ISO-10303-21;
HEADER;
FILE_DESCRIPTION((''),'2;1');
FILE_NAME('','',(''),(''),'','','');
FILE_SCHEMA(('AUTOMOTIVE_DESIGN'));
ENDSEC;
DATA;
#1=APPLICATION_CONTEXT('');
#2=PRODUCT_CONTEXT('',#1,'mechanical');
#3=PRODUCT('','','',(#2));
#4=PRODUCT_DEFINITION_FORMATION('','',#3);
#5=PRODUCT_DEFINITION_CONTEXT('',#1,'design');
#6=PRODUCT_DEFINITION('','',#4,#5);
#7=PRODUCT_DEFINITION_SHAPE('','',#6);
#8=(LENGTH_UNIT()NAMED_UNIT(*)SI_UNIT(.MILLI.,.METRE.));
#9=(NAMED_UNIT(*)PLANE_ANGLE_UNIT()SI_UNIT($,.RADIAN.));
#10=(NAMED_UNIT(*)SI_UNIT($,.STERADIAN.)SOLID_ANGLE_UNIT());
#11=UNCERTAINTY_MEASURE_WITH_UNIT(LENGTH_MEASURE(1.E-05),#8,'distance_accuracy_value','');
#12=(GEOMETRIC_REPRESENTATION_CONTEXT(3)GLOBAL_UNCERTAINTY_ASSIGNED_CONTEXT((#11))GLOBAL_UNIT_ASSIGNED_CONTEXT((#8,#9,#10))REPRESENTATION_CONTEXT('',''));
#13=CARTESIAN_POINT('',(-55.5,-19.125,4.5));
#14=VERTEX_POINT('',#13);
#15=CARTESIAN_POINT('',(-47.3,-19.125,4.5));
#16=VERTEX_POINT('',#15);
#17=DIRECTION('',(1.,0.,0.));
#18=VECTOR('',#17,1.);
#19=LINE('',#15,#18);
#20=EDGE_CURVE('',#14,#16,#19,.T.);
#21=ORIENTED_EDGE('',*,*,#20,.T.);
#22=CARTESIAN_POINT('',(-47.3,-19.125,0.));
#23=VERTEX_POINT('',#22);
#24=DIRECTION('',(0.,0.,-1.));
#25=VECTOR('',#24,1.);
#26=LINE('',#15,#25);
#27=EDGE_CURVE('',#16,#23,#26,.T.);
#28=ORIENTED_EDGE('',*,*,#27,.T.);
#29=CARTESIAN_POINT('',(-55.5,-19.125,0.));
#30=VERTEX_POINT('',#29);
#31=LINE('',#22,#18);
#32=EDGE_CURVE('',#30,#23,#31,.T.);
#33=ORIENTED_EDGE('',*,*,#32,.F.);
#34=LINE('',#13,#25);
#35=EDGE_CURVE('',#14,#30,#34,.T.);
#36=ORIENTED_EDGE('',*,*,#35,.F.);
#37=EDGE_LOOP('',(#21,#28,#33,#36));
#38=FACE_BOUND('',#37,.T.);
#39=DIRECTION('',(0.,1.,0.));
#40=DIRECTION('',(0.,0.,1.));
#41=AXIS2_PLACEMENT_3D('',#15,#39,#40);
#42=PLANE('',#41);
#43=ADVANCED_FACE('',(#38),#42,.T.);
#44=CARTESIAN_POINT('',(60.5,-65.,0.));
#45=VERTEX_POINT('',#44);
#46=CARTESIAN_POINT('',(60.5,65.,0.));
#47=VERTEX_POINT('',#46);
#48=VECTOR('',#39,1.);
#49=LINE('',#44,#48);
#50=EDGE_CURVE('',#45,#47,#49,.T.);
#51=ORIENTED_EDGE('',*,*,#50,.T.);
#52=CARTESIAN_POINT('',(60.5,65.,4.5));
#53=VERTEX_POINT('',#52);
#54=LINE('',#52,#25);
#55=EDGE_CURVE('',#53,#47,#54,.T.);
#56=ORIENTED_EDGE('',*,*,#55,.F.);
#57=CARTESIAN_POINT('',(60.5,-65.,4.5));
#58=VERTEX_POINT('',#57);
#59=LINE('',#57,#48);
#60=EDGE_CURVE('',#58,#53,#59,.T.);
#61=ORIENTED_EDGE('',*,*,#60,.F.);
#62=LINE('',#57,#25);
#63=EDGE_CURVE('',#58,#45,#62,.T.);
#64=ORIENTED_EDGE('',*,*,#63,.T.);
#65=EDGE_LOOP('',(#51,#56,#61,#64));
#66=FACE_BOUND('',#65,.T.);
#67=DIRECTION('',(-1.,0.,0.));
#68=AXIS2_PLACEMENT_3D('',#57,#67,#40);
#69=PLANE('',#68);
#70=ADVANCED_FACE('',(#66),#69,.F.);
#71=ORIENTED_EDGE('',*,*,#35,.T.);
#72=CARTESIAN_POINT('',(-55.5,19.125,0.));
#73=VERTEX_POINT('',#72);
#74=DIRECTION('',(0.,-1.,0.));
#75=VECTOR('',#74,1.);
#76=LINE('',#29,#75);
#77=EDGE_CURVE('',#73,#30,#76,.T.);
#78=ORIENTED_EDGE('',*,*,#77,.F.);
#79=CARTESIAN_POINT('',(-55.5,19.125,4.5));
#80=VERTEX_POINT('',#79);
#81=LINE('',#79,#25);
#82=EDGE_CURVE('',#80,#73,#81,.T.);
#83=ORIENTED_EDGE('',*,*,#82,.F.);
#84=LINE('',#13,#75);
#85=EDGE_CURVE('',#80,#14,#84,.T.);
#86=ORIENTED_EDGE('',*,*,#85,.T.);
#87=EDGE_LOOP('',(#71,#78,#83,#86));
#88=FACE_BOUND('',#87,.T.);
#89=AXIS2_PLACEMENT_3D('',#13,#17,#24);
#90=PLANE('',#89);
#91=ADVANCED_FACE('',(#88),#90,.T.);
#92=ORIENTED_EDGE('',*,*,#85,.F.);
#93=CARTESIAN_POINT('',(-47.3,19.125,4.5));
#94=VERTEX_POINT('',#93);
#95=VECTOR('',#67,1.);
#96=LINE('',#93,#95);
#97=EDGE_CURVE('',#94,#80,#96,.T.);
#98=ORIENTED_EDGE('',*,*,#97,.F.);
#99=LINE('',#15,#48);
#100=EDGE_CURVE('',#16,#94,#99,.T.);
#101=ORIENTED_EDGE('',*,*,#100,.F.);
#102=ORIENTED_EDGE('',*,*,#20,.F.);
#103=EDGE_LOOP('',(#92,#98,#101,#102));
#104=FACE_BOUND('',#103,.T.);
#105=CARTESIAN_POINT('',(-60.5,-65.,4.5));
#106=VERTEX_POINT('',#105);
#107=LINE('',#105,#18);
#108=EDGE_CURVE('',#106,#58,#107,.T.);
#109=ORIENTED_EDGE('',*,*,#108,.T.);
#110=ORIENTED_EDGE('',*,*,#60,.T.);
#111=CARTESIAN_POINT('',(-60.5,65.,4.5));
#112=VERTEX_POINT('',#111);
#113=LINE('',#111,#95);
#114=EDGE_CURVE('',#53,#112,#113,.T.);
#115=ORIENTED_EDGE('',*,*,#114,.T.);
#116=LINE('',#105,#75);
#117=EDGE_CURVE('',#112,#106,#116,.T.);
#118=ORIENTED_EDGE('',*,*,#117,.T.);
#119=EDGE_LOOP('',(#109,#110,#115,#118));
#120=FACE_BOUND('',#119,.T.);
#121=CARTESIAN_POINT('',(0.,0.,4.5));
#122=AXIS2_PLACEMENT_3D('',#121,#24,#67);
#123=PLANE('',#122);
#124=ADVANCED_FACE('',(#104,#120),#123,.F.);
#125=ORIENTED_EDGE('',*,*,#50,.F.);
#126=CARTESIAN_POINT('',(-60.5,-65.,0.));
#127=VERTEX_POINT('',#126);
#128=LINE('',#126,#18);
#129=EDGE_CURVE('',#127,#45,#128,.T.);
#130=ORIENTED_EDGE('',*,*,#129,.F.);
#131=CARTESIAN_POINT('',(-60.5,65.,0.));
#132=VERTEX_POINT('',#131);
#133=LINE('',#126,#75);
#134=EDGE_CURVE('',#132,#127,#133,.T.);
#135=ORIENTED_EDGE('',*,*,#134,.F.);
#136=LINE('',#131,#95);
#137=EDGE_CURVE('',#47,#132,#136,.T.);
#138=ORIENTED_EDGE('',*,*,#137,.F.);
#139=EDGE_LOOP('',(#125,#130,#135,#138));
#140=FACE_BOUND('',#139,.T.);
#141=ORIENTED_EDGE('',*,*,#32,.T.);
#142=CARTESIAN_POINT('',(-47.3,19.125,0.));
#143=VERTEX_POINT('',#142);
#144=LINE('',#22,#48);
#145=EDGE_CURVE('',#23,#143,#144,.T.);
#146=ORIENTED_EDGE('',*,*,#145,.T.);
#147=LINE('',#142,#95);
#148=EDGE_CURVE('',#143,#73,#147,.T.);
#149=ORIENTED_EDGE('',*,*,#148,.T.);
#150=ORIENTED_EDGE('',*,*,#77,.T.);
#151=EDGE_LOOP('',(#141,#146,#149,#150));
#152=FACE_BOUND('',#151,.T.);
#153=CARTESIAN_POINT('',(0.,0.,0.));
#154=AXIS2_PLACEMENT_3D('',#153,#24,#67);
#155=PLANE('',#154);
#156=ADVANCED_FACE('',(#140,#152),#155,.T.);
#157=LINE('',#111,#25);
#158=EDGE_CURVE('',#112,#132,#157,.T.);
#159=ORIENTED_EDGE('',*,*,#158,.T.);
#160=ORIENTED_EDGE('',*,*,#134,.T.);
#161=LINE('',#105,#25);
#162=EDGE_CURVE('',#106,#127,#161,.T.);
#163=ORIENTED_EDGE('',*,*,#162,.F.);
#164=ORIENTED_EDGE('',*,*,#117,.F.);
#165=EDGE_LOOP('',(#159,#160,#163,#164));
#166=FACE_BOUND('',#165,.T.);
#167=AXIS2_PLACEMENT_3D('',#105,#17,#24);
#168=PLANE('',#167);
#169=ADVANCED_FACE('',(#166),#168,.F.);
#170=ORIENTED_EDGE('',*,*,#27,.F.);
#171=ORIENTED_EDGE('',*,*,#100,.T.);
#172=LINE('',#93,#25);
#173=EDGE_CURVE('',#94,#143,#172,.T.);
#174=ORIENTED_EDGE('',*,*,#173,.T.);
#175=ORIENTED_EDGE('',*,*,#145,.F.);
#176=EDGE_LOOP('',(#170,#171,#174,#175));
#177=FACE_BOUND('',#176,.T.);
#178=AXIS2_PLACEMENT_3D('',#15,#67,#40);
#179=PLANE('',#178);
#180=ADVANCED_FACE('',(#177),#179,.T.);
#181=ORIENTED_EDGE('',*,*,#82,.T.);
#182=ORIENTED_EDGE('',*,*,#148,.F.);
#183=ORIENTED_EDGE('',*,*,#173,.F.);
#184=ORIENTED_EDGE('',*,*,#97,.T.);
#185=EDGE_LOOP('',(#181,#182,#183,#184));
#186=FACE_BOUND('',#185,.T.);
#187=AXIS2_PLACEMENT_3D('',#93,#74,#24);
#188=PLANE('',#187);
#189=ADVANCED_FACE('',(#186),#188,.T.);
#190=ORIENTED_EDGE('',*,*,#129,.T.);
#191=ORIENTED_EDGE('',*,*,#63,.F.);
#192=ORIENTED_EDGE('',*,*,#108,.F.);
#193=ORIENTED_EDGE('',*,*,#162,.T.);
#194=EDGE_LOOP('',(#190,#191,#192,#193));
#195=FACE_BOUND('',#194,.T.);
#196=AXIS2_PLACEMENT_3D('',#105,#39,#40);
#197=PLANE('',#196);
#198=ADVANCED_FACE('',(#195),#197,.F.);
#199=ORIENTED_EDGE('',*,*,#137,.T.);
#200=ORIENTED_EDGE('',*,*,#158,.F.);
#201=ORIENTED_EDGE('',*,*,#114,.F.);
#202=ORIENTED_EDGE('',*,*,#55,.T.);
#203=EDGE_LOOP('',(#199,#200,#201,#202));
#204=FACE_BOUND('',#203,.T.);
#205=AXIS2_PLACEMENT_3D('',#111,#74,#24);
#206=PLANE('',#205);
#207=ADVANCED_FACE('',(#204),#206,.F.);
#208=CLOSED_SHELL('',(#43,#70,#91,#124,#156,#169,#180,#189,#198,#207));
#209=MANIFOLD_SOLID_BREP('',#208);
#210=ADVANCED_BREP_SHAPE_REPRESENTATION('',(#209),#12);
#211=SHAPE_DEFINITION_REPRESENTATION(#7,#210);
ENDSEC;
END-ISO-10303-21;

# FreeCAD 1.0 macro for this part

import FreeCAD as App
import Part
import Sketcher

V = App.Vector


def add_polygon(sketch, points):
    """Adds a closed chain of lines whose ends are joined by coincident constraints."""
    first, n = sketch.GeometryCount, len(points)
    for a, b in zip(points, points[1:] + points[:1]):
        sketch.addGeometry(Part.LineSegment(App.Vector(*a, 0), App.Vector(*b, 0)), False)
    for i in range(n):
        sketch.addConstraint(Sketcher.Constraint("Coincident", first + i, 2, first + (i + 1) % n, 1))

doc = App.newDocument("Part")
body = doc.addObject("PartDesign::Body", "Body")

sketch1 = body.newObject("Sketcher::SketchObject", "Sketch")
sketch1.AttachmentSupport = (doc.getObject("XY_Plane"), [""])
sketch1.MapMode = "FlatFace"
add_polygon(sketch1, [(-60, 65), (-60, -65), (60, -65), (60, 65)])
add_polygon(sketch1, [(-47, -19), (-56, -19), (-56, 19), (-47, 19)])
sketch1.addConstraint([
    Sketcher.Constraint("Vertical", 0),
    Sketcher.Constraint("Horizontal", 1),
    Sketcher.Constraint("Vertical", 2),
    Sketcher.Constraint("Horizontal", 3),
    Sketcher.Constraint("Horizontal", 4),
    Sketcher.Constraint("Vertical", 5),
    Sketcher.Constraint("Horizontal", 6),
    Sketcher.Constraint("Vertical", 7),
    Sketcher.Constraint("Symmetric", 0, 2, 2, 2, -1, 1),
    Sketcher.Constraint("DistanceX", 1, 1, 1, 2, 121.0),
    Sketcher.Constraint("DistanceY", 0, 2, 0, 1, 130.0),
    Sketcher.Constraint("DistanceX", 4, 2, 4, 1, 8.2),
    Sketcher.Constraint("DistanceX", 0, 2, 4, 2, 5.0),
    Sketcher.Constraint("DistanceY", 5, 1, 5, 2, 38.25),
    Sketcher.Constraint("DistanceY", 4, 2, -1, 1, 19.125),
])
pad1 = body.newObject("PartDesign::Pad", "Pad")
pad1.Profile = sketch1
pad1.Length = 4.5

doc.recompute()
